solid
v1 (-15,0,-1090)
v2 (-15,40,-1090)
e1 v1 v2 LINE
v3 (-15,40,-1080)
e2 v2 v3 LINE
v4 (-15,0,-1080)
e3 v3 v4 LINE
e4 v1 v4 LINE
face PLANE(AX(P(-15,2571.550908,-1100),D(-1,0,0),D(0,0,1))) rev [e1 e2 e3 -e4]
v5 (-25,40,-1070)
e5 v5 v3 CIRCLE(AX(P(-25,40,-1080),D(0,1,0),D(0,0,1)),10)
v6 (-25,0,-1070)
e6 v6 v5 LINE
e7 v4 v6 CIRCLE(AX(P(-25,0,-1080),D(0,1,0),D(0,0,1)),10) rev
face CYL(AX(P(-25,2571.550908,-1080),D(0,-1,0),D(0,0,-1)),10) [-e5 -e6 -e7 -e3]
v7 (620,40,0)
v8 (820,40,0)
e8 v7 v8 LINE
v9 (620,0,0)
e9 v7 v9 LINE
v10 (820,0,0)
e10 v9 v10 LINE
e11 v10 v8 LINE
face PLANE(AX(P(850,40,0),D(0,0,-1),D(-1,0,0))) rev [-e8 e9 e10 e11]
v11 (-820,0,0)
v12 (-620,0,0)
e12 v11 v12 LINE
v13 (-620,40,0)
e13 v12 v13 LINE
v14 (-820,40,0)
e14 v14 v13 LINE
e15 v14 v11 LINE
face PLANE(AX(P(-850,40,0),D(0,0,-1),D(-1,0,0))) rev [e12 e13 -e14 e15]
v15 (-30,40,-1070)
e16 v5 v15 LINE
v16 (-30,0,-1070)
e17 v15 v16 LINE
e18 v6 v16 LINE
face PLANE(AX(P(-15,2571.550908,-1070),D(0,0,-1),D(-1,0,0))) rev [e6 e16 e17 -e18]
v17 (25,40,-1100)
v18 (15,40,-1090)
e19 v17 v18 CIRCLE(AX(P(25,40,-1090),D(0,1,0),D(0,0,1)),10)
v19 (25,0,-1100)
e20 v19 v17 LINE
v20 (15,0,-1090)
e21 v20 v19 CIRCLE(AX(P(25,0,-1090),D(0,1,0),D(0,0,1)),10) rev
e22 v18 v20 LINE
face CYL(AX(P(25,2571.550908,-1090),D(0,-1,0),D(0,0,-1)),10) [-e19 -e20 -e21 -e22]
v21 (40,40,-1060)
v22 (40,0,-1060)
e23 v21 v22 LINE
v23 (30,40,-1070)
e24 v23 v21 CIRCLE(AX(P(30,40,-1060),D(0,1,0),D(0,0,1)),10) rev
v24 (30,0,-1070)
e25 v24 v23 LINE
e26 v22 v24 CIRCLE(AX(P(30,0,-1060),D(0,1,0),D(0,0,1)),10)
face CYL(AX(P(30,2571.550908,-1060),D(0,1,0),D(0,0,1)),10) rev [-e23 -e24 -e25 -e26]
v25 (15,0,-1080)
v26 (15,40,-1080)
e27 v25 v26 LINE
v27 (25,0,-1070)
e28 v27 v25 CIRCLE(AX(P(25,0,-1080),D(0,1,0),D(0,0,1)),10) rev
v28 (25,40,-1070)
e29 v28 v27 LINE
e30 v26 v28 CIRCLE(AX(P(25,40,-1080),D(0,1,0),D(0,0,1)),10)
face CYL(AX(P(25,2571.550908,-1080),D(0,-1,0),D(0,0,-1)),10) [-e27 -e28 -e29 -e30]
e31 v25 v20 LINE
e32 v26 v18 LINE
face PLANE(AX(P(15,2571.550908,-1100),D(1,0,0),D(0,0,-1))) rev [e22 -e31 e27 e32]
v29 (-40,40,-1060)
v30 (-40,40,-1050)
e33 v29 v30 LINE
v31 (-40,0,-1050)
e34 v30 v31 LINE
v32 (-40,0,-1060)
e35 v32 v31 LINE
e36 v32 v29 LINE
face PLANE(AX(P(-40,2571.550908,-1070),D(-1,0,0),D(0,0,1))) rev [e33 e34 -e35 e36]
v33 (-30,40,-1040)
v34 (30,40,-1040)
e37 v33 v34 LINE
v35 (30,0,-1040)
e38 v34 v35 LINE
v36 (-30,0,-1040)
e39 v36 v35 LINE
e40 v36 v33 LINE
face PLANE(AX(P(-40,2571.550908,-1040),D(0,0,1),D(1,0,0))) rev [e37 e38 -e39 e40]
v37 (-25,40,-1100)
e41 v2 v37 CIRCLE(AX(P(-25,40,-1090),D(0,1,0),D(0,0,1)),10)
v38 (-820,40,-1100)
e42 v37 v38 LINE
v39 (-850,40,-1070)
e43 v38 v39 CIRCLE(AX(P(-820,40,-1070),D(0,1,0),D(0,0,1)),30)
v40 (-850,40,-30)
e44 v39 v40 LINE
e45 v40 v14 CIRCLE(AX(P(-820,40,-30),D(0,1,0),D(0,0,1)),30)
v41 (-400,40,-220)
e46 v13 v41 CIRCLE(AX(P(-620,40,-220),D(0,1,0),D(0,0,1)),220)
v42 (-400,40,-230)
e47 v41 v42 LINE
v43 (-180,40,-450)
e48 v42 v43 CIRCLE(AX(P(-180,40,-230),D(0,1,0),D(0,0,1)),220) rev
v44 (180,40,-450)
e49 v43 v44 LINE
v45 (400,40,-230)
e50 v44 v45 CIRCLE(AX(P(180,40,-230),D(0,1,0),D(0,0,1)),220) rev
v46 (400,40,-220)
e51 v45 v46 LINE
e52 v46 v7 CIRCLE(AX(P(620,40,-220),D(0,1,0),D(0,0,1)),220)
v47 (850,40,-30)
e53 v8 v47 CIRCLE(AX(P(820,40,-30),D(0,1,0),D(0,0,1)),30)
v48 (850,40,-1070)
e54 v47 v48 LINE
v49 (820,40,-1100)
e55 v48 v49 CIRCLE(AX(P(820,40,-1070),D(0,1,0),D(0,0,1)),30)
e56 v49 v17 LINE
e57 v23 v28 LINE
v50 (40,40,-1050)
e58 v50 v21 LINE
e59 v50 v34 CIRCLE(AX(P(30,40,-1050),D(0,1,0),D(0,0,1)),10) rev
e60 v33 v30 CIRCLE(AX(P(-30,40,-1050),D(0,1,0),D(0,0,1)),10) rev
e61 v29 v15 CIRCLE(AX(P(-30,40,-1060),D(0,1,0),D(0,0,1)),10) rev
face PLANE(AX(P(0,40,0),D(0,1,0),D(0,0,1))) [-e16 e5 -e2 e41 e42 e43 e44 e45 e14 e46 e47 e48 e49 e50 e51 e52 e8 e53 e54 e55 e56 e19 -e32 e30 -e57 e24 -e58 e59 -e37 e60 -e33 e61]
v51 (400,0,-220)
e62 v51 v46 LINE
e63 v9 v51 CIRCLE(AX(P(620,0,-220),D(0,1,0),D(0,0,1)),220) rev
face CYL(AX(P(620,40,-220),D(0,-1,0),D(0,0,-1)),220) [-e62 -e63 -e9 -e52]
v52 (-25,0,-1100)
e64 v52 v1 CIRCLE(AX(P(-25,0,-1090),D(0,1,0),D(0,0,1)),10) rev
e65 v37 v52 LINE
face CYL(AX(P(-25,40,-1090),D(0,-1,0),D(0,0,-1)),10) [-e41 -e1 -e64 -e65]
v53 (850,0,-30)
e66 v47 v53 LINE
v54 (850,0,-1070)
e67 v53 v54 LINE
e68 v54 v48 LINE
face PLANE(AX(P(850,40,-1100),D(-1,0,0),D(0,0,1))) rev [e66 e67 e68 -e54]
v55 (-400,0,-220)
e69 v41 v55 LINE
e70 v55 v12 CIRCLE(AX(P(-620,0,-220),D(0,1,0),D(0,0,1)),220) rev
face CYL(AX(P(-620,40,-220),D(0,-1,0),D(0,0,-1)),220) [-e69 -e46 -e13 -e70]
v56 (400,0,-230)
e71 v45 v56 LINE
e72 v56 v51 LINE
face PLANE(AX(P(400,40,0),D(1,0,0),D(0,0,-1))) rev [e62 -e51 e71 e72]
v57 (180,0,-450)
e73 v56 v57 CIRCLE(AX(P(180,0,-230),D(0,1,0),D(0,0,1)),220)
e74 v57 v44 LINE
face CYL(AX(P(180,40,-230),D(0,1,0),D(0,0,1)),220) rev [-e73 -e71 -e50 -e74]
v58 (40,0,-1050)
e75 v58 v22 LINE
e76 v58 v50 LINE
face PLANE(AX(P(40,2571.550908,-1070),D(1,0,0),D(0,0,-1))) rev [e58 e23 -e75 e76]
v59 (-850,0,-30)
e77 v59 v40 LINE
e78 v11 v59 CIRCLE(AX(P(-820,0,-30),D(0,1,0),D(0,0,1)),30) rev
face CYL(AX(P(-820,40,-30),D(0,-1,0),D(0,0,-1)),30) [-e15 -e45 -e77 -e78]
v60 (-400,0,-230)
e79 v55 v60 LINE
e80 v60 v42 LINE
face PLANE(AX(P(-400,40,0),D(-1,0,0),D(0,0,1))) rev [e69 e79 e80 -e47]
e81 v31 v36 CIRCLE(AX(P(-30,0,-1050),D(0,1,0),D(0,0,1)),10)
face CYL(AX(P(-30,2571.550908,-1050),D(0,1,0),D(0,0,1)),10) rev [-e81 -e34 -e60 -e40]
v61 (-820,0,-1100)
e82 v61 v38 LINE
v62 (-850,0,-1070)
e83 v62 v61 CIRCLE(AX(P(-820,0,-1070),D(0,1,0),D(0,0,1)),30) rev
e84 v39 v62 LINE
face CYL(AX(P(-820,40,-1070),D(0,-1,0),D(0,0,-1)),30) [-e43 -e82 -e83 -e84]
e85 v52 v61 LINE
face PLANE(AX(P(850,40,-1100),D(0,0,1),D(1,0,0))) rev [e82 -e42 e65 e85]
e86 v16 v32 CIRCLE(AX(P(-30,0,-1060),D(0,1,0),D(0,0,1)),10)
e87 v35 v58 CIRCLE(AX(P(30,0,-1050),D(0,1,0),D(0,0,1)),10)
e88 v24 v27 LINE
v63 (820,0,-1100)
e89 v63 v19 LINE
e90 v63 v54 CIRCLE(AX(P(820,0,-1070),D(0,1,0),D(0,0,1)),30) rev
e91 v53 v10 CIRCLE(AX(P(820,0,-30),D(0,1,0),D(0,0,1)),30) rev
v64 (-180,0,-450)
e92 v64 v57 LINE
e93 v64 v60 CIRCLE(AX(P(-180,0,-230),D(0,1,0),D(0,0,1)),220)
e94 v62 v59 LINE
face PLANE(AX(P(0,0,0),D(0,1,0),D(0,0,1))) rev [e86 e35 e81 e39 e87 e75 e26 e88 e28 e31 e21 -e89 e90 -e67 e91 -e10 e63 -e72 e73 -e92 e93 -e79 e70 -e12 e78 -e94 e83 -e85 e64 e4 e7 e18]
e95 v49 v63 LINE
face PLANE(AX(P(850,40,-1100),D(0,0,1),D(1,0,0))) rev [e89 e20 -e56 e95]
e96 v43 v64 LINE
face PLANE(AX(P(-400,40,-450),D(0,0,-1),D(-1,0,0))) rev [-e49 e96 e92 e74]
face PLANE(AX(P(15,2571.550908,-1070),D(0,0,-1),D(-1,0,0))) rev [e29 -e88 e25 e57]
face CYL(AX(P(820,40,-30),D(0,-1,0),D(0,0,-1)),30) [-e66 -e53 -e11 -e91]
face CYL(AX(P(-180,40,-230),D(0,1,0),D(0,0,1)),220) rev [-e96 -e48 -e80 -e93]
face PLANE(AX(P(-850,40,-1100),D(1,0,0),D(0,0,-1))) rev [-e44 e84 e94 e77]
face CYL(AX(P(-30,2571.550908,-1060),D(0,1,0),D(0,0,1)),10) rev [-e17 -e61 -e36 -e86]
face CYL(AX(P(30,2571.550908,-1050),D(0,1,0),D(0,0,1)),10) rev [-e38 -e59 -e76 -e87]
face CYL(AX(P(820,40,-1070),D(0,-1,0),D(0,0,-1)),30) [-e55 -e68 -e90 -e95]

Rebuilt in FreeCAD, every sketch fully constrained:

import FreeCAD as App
import Part
import Sketcher
Q = App.Units.Quantity


def edges_at(feature, points):
    """Names of the edges that pass closest to the given points."""
    edges = feature.Shape.Edges
    near = lambda p: min(range(len(edges)), key=lambda i: edges[i].distToShape(Part.Vertex(*p))[0])
    return sorted({f"Edge{near(p) + 1}" for p in points})

doc = App.newDocument("Part")
body = doc.addObject("PartDesign::Body", "Body")

sketch1 = doc.addObject("Sketcher::SketchObject", "Sketch")
body.addObject(sketch1)
sketch1.AttachmentSupport = (doc.XZ_Plane, [""])
sketch1.MapMode = "FlatFace"
sketch1.addGeometry([
    Part.LineSegment(App.Vector(850, -1100, 0), App.Vector(-850, -1100, 0)),
    Part.LineSegment(App.Vector(-850, -1100, 0), App.Vector(-850, 0, 0)),
    Part.LineSegment(App.Vector(-850, 0, 0), App.Vector(-400, 0, 0)),
    Part.LineSegment(App.Vector(-400, 0, 0), App.Vector(-400, -450, 0)),
    Part.LineSegment(App.Vector(-400, -450, 0), App.Vector(400, -450, 0)),
    Part.LineSegment(App.Vector(400, -450, 0), App.Vector(400, 0, 0)),
    Part.LineSegment(App.Vector(400, 0, 0), App.Vector(850, 0, 0)),
    Part.LineSegment(App.Vector(850, 0, 0), App.Vector(850, -1100, 0)),
], False)
sketch1.addConstraint([
    Sketcher.Constraint("Coincident", 0, 2, 1, 1),
    Sketcher.Constraint("Coincident", 1, 2, 2, 1),
    Sketcher.Constraint("Coincident", 2, 2, 3, 1),
    Sketcher.Constraint("Coincident", 3, 2, 4, 1),
    Sketcher.Constraint("Coincident", 4, 2, 5, 1),
    Sketcher.Constraint("Coincident", 5, 2, 6, 1),
    Sketcher.Constraint("Coincident", 6, 2, 7, 1),
    Sketcher.Constraint("Coincident", 7, 2, 0, 1),
    Sketcher.Constraint("Horizontal", 0),
    Sketcher.Constraint("Vertical", 1),
    Sketcher.Constraint("Horizontal", 2),
    Sketcher.Constraint("Vertical", 3),
    Sketcher.Constraint("Horizontal", 4),
    Sketcher.Constraint("Vertical", 5),
    Sketcher.Constraint("Horizontal", 6),
    Sketcher.Constraint("Vertical", 7),
    Sketcher.Constraint("Symmetric", 2, 2, 5, 2, -1, 1),
    Sketcher.Constraint("Symmetric", 1, 2, 6, 2, -2),
    Sketcher.Constraint("Equal", 6, 3),
    Sketcher.Constraint("DistanceX", 0, 2, 0, 1, Q("1700 mm")),
    Sketcher.Constraint("DistanceX", 2, 1, 2, 2, Q("450 mm")),
    Sketcher.Constraint("DistanceY", 1, 1, 1, 2, Q("1100 mm")),
])
pad1 = doc.addObject("PartDesign::Pad", "Pad")
body.addObject(pad1)
pad1.Profile = sketch1
pad1.Length = 40
pad1.Reversed = True
doc.recompute()

fillet = doc.addObject("PartDesign::Fillet", "Fillet")
body.addObject(fillet)
fillet.Base = (pad1, edges_at(pad1, [
    (-400, 20, -450),
    (-400, 20, 0),
    (400, 20, 0),
    (400, 20, -450),
]))
fillet.Radius = 220
doc.recompute()

fillet2 = doc.addObject("PartDesign::Fillet", "Fillet001")
body.addObject(fillet2)
fillet2.Base = (fillet, edges_at(fillet, [
    (-850, 20, 0),
    (-850, 20, -1100),
    (850, 20, -1100),
    (850, 20, 0),
]))
fillet2.Radius = 30

sketch2 = doc.addObject("Sketcher::SketchObject", "Sketch001")
body.addObject(sketch2)
sketch2.AttachmentSupport = (doc.XZ_Plane, [""])
sketch2.MapMode = "FlatFace"
sketch2.AttachmentOffset = App.Placement(App.Vector(0, 0, -40), App.Rotation())
sketch2.addGeometry([
    Part.LineSegment(App.Vector(-15, -1070, 0), App.Vector(-40, -1070, 0)),
    Part.LineSegment(App.Vector(-40, -1070, 0), App.Vector(-40, -1040, 0)),
    Part.LineSegment(App.Vector(-40, -1040, 0), App.Vector(40, -1040, 0)),
    Part.LineSegment(App.Vector(40, -1040, 0), App.Vector(40, -1070, 0)),
    Part.LineSegment(App.Vector(40, -1070, 0), App.Vector(15, -1070, 0)),
    Part.LineSegment(App.Vector(15, -1070, 0), App.Vector(15, -9526, 0)),
    Part.LineSegment(App.Vector(15, -9526, 0), App.Vector(-15, -9526, 0)),
    Part.LineSegment(App.Vector(-15, -9526, 0), App.Vector(-15, -1070, 0)),
], False)
sketch2.addConstraint([
    Sketcher.Constraint("Coincident", 0, 2, 1, 1),
    Sketcher.Constraint("Coincident", 1, 2, 2, 1),
    Sketcher.Constraint("Coincident", 2, 2, 3, 1),
    Sketcher.Constraint("Coincident", 3, 2, 4, 1),
    Sketcher.Constraint("Coincident", 4, 2, 5, 1),
    Sketcher.Constraint("Coincident", 5, 2, 6, 1),
    Sketcher.Constraint("Coincident", 6, 2, 7, 1),
    Sketcher.Constraint("Coincident", 7, 2, 0, 1),
    Sketcher.Constraint("Horizontal", 0),
    Sketcher.Constraint("Vertical", 1),
    Sketcher.Constraint("Horizontal", 2),
    Sketcher.Constraint("Vertical", 3),
    Sketcher.Constraint("Horizontal", 4),
    Sketcher.Constraint("Vertical", 5),
    Sketcher.Constraint("Horizontal", 6),
    Sketcher.Constraint("Vertical", 7),
    Sketcher.Constraint("Symmetric", 0, 2, 3, 2, -2),
    Sketcher.Constraint("Equal", 0, 4),
    Sketcher.Constraint("Equal", 6, 1),
    Sketcher.Constraint("DistanceX", 0, 2, 0, 1, Q("25 mm")),
    Sketcher.Constraint("DistanceX", 2, 1, 2, 2, Q("80 mm")),
    Sketcher.Constraint("DistanceY", 0, 2, -1, 1, Q("1070 mm")),
    Sketcher.Constraint("DistanceY", 5, 2, 5, 1, Q("8456.195567 mm")),
])
pocket1 = doc.addObject("PartDesign::Pocket", "Pocket")
body.addObject(pocket1)
pocket1.Profile = sketch2
pocket1.Type = "ThroughAll"
pocket1.Midplane = True
doc.recompute()

fillet3 = doc.addObject("PartDesign::Fillet", "Fillet002")
body.addObject(fillet3)
fillet3.Base = (pocket1, edges_at(pocket1, [
    (-15, 20, -1070),
    (-40, 20, -1070),
    (-40, 20, -1040),
    (40, 20, -1040),
    (40, 20, -1070),
    (15, 20, -1070),
    (15, 20, -1100),
    (-15, 20, -1100),
]))
fillet3.Radius = 10

doc.recompute()
